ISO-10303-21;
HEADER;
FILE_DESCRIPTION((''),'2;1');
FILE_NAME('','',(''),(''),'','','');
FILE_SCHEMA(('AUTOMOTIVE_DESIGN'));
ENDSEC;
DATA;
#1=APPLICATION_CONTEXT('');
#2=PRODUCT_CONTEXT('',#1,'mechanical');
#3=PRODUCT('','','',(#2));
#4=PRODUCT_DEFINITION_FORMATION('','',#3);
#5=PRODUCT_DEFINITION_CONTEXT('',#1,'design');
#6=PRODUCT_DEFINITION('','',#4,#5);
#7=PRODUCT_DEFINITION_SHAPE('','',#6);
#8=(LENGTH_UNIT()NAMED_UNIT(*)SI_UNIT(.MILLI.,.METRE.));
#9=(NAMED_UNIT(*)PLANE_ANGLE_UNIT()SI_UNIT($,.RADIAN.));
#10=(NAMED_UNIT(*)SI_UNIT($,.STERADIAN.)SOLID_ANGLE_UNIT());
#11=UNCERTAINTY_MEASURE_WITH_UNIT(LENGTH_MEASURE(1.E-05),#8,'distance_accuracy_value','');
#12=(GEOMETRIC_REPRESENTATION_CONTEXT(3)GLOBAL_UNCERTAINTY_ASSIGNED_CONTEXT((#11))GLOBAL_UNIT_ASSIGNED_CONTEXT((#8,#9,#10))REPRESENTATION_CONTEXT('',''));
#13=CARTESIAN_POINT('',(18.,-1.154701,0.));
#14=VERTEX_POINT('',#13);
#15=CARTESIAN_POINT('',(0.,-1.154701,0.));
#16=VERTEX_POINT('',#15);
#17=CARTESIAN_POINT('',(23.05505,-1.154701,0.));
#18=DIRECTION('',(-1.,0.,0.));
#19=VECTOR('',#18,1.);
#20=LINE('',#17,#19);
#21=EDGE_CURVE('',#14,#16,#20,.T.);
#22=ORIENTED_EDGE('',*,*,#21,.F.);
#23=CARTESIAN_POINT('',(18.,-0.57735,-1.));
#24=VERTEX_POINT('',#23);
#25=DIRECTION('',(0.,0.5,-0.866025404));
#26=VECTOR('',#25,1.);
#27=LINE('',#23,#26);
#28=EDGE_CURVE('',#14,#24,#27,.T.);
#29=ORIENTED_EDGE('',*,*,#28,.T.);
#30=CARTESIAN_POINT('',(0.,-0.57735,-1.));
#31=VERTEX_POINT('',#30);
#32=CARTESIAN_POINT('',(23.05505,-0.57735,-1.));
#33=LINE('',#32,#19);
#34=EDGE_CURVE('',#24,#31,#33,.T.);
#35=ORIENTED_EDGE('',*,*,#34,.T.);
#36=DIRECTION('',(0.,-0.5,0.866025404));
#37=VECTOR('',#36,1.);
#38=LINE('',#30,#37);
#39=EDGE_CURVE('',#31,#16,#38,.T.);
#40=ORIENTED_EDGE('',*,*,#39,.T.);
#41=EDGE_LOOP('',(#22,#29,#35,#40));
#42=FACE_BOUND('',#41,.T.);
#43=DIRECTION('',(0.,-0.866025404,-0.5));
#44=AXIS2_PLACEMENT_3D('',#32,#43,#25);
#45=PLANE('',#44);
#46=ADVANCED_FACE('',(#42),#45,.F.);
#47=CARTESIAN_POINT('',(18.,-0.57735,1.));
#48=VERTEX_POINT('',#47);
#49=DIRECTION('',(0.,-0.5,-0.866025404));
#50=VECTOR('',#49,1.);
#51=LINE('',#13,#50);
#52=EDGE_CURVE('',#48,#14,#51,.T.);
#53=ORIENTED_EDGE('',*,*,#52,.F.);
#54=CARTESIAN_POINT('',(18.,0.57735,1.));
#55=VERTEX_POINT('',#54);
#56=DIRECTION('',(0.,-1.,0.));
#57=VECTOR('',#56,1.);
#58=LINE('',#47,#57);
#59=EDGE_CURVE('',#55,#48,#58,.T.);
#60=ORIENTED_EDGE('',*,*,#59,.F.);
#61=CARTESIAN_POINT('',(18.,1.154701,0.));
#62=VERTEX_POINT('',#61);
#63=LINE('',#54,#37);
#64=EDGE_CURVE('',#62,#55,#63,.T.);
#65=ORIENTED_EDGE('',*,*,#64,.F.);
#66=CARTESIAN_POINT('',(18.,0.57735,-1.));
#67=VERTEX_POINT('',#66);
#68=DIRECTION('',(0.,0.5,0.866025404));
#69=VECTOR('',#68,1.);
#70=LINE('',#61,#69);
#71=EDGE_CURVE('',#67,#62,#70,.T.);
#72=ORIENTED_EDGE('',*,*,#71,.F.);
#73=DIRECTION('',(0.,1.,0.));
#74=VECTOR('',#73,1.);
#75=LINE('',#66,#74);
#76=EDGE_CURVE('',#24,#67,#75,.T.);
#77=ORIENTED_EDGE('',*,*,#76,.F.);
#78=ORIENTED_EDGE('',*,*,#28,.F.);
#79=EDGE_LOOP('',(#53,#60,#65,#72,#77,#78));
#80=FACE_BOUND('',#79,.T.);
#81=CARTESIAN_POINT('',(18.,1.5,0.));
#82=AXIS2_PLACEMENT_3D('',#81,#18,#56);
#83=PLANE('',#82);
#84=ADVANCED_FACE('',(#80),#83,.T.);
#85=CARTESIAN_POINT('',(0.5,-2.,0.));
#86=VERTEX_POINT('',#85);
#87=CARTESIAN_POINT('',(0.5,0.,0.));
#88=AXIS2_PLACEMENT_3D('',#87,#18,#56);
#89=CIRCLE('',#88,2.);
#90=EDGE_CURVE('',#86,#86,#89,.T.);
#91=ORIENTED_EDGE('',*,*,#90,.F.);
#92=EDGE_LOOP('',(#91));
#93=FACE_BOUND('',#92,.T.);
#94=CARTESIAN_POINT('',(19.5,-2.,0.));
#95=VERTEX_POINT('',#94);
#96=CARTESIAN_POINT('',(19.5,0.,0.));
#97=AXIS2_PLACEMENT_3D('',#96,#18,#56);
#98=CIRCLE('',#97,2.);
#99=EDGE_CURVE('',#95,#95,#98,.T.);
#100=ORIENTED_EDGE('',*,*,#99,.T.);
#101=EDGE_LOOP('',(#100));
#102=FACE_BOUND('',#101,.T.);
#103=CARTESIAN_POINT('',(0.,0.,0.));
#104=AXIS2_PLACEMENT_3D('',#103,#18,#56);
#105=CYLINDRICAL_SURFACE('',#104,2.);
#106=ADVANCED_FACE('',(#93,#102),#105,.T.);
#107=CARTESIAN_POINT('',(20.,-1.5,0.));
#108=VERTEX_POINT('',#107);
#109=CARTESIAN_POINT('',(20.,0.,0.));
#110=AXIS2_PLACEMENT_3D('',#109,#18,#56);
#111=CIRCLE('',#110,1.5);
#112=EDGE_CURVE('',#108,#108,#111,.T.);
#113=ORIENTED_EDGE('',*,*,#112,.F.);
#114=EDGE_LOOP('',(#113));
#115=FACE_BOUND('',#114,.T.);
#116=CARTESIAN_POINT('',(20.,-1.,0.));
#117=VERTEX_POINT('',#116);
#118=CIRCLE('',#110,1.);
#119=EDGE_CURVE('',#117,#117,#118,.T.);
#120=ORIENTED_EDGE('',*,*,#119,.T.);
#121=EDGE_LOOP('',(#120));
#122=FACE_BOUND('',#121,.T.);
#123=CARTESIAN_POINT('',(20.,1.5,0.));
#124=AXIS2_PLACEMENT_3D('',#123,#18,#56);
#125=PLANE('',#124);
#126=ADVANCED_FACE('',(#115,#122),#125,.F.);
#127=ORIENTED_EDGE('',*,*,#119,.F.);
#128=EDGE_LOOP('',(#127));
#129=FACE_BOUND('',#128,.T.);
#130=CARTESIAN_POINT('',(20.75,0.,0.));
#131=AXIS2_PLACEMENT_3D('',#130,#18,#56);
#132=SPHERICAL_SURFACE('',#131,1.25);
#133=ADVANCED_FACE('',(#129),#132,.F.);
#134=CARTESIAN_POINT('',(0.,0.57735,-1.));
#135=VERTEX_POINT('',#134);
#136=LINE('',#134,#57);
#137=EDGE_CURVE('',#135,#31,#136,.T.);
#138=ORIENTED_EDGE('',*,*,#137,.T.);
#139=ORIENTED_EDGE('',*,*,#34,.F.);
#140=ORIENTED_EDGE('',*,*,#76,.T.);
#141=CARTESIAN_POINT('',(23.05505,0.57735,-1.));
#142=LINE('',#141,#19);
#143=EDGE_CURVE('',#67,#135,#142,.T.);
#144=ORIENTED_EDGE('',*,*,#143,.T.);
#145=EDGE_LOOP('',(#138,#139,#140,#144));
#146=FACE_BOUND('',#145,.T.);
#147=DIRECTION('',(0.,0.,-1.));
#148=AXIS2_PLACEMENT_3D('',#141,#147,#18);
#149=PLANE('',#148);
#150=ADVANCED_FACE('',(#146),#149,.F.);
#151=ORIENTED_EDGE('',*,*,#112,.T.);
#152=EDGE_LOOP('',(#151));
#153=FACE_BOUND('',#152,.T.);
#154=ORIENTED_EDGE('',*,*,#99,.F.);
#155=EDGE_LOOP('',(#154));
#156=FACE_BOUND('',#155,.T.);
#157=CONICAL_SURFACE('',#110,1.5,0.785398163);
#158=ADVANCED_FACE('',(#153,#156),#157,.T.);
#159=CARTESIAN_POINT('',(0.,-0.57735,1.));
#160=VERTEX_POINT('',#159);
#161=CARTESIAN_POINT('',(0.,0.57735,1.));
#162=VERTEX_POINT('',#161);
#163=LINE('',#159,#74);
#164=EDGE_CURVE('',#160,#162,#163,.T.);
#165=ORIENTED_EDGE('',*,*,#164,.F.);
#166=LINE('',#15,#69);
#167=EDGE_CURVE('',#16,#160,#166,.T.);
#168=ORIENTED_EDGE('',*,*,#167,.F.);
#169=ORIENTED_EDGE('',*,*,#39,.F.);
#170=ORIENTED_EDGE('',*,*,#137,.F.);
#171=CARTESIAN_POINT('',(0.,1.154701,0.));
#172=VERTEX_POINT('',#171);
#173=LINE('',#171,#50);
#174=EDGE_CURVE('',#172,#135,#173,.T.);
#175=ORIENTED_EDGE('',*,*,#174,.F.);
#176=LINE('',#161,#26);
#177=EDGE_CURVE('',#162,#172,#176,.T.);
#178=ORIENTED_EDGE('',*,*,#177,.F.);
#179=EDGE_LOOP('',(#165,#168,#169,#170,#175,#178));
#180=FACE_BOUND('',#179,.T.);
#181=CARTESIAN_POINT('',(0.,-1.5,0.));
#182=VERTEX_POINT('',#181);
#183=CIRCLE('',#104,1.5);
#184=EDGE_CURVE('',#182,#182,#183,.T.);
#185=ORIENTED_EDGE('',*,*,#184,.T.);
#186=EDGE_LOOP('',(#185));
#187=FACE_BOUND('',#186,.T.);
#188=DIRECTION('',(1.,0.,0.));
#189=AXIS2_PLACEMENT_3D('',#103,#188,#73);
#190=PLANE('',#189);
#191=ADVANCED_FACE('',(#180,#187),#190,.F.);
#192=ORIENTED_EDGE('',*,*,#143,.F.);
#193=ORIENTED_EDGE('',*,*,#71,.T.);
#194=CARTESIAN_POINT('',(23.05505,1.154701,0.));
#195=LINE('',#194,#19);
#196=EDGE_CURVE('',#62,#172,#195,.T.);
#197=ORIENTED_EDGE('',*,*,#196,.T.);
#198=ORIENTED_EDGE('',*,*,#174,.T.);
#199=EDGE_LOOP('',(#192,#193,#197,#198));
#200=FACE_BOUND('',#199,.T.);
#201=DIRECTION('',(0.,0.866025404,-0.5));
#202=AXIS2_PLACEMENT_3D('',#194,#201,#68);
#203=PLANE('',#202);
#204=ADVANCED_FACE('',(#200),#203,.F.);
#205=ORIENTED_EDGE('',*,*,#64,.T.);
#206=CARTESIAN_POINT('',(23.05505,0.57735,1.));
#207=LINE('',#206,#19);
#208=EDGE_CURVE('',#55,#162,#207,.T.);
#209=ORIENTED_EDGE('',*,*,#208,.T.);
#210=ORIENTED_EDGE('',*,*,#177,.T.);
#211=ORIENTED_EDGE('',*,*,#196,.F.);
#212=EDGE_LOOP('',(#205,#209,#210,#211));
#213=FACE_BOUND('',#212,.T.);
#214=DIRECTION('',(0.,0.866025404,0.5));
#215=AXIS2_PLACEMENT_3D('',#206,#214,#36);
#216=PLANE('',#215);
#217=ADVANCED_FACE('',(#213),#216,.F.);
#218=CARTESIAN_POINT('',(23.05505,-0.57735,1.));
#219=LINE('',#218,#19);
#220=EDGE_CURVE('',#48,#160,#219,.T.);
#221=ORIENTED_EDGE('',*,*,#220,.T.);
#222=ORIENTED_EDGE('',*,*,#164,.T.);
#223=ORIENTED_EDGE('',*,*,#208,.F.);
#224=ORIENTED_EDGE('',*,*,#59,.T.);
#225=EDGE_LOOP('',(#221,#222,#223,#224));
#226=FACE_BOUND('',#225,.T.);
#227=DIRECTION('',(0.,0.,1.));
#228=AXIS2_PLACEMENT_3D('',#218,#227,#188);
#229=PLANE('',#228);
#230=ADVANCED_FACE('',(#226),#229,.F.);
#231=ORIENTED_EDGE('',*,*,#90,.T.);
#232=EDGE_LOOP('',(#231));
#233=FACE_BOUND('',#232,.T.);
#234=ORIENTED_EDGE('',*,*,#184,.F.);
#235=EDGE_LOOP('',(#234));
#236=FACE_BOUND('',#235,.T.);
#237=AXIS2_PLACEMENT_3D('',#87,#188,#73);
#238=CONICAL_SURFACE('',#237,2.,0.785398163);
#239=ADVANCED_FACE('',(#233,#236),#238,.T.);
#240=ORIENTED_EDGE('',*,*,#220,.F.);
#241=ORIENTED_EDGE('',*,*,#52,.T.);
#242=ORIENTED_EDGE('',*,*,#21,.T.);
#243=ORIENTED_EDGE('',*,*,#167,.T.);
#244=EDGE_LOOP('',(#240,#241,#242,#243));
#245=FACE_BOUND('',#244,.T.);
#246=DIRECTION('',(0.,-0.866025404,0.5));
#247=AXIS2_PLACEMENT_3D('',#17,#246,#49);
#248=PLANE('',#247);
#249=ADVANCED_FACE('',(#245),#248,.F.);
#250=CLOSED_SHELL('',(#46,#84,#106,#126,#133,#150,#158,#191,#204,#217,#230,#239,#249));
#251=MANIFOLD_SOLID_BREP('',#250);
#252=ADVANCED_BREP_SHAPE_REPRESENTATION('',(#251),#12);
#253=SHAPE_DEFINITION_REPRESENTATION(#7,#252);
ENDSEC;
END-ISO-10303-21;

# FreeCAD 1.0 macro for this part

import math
import FreeCAD as App
import Part
import Sketcher
from FreeCAD import Vector
Q = App.Units.Quantity

doc = App.newDocument("Part")
body = doc.addObject("PartDesign::Body", "Body")

# Sketch on XY plane
sketch1 = doc.addObject("Sketcher::SketchObject", "Sketch")
body.addObject(sketch1)
sketch1.AttachmentSupport = (doc.XY_Plane, [""])
sketch1.MapMode = "FlatFace"
sketch1.addGeometry([
    Part.LineSegment(Vector(0, 1.5, 0), Vector(0, 0, 0)),  # 0
    Part.LineSegment(Vector(0, 0, 0), Vector(19.5, 0, 0)),  # 1
    Part.ArcOfCircle(Part.Circle(Vector(20.8, 0, 0), Vector(0, 0, 1), 1.2), math.radians(127), math.radians(180)),  # 2
    Part.LineSegment(Vector(20, 1, 0), Vector(20, 1.5, 0)),  # 3
    Part.LineSegment(Vector(20, 1.5, 0), Vector(19.5, 2, 0)),  # 4
    Part.LineSegment(Vector(19.5, 2, 0), Vector(0.5, 2, 0)),  # 5
    Part.LineSegment(Vector(0.5, 2, 0), Vector(0, 1.5, 0)),  # 6
], False)
sketch1.addConstraint([
    Sketcher.Constraint("Coincident", 0, 2, 1, 1),
    Sketcher.Constraint("Coincident", 1, 2, 2, 2),
    Sketcher.Constraint("Coincident", 2, 1, 3, 1),
    Sketcher.Constraint("Coincident", 3, 2, 4, 1),
    Sketcher.Constraint("Coincident", 4, 2, 5, 1),
    Sketcher.Constraint("Coincident", 5, 2, 6, 1),
    Sketcher.Constraint("Coincident", 6, 2, 0, 1),
    Sketcher.Constraint("Vertical", 0),
    Sketcher.Constraint("Horizontal", 1),
    Sketcher.Constraint("Vertical", 3),
    Sketcher.Constraint("Horizontal", 5),
    Sketcher.Constraint("Coincident", 0, 2, -1, 1),
    Sketcher.Constraint("PointOnObject", 2, 3, -1),
    Sketcher.Constraint("Perpendicular", 4, 6),
    Sketcher.Constraint("Horizontal", 3, 2, 6, 2),
    Sketcher.Constraint("Vertical", 1, 2, 4, 2),
    Sketcher.Constraint("Equal", 4, 6),
    Sketcher.Constraint("DistanceX", 5, 2, 5, 1, 19.0),
    Sketcher.Constraint("Radius", 2, 1.25),
    Sketcher.Constraint("DistanceX", 1, 1, 1, 2, 19.5),
    Sketcher.Constraint("DistanceY", 0, 2, 0, 1, 1.5),
])
revolution = doc.addObject("PartDesign::Revolution", "Revolution")
body.addObject(revolution)
revolution.Profile = sketch1
revolution.ReferenceAxis = (sketch1, ["H_Axis"])
revolution.Angle = 360

# Sketch on YZ plane
sketch2 = doc.addObject("Sketcher::SketchObject", "Sketch001")
body.addObject(sketch2)
sketch2.AttachmentSupport = (doc.YZ_Plane, [""])
sketch2.MapMode = "FlatFace"
sketch2.addGeometry([
    Part.LineSegment(Vector(1.2, 0, 0), Vector(0.6, -1, 0)),  # 0
    Part.LineSegment(Vector(0.6, -1, 0), Vector(-0.6, -1, 0)),  # 1
    Part.LineSegment(Vector(-0.6, -1, 0), Vector(-1.2, 0, 0)),  # 2
    Part.LineSegment(Vector(-1.2, 0, 0), Vector(-0.6, 1, 0)),  # 3
    Part.LineSegment(Vector(-0.6, 1, 0), Vector(0.6, 1, 0)),  # 4
    Part.LineSegment(Vector(0.6, 1, 0), Vector(1.2, 0, 0)),  # 5
], False)
sketch2.addConstraint([
    Sketcher.Constraint("Coincident", 0, 2, 1, 1),
    Sketcher.Constraint("Coincident", 1, 2, 2, 1),
    Sketcher.Constraint("Coincident", 2, 2, 3, 1),
    Sketcher.Constraint("Coincident", 3, 2, 4, 1),
    Sketcher.Constraint("Coincident", 4, 2, 5, 1),
    Sketcher.Constraint("Coincident", 5, 2, 0, 1),
    Sketcher.Constraint("Horizontal", 1),
    Sketcher.Constraint("Horizontal", 4),
    Sketcher.Constraint("Symmetric", 0, 2, 3, 2, -1, 1),
    Sketcher.Constraint("Symmetric", 2, 2, 5, 2, -1, 1),
    Sketcher.Constraint("PointOnObject", 2, 2, -1),
    Sketcher.Constraint("Parallel", 2, 5),
    Sketcher.Constraint("Vertical", 1, 2, 3, 2),
    Sketcher.Constraint("Angle", 0, Q("-120 deg")),
    Sketcher.Constraint("DistanceY", 0, 2, -1, 1, 1.0),
    Sketcher.Constraint("DistanceX", 1, 2, 1, 1, 1.154701),
])
pocket1 = doc.addObject("PartDesign::Pocket", "Pocket")
body.addObject(pocket1)
pocket1.Profile = sketch2
pocket1.Length = 18
pocket1.Reversed = True

doc.recompute()
